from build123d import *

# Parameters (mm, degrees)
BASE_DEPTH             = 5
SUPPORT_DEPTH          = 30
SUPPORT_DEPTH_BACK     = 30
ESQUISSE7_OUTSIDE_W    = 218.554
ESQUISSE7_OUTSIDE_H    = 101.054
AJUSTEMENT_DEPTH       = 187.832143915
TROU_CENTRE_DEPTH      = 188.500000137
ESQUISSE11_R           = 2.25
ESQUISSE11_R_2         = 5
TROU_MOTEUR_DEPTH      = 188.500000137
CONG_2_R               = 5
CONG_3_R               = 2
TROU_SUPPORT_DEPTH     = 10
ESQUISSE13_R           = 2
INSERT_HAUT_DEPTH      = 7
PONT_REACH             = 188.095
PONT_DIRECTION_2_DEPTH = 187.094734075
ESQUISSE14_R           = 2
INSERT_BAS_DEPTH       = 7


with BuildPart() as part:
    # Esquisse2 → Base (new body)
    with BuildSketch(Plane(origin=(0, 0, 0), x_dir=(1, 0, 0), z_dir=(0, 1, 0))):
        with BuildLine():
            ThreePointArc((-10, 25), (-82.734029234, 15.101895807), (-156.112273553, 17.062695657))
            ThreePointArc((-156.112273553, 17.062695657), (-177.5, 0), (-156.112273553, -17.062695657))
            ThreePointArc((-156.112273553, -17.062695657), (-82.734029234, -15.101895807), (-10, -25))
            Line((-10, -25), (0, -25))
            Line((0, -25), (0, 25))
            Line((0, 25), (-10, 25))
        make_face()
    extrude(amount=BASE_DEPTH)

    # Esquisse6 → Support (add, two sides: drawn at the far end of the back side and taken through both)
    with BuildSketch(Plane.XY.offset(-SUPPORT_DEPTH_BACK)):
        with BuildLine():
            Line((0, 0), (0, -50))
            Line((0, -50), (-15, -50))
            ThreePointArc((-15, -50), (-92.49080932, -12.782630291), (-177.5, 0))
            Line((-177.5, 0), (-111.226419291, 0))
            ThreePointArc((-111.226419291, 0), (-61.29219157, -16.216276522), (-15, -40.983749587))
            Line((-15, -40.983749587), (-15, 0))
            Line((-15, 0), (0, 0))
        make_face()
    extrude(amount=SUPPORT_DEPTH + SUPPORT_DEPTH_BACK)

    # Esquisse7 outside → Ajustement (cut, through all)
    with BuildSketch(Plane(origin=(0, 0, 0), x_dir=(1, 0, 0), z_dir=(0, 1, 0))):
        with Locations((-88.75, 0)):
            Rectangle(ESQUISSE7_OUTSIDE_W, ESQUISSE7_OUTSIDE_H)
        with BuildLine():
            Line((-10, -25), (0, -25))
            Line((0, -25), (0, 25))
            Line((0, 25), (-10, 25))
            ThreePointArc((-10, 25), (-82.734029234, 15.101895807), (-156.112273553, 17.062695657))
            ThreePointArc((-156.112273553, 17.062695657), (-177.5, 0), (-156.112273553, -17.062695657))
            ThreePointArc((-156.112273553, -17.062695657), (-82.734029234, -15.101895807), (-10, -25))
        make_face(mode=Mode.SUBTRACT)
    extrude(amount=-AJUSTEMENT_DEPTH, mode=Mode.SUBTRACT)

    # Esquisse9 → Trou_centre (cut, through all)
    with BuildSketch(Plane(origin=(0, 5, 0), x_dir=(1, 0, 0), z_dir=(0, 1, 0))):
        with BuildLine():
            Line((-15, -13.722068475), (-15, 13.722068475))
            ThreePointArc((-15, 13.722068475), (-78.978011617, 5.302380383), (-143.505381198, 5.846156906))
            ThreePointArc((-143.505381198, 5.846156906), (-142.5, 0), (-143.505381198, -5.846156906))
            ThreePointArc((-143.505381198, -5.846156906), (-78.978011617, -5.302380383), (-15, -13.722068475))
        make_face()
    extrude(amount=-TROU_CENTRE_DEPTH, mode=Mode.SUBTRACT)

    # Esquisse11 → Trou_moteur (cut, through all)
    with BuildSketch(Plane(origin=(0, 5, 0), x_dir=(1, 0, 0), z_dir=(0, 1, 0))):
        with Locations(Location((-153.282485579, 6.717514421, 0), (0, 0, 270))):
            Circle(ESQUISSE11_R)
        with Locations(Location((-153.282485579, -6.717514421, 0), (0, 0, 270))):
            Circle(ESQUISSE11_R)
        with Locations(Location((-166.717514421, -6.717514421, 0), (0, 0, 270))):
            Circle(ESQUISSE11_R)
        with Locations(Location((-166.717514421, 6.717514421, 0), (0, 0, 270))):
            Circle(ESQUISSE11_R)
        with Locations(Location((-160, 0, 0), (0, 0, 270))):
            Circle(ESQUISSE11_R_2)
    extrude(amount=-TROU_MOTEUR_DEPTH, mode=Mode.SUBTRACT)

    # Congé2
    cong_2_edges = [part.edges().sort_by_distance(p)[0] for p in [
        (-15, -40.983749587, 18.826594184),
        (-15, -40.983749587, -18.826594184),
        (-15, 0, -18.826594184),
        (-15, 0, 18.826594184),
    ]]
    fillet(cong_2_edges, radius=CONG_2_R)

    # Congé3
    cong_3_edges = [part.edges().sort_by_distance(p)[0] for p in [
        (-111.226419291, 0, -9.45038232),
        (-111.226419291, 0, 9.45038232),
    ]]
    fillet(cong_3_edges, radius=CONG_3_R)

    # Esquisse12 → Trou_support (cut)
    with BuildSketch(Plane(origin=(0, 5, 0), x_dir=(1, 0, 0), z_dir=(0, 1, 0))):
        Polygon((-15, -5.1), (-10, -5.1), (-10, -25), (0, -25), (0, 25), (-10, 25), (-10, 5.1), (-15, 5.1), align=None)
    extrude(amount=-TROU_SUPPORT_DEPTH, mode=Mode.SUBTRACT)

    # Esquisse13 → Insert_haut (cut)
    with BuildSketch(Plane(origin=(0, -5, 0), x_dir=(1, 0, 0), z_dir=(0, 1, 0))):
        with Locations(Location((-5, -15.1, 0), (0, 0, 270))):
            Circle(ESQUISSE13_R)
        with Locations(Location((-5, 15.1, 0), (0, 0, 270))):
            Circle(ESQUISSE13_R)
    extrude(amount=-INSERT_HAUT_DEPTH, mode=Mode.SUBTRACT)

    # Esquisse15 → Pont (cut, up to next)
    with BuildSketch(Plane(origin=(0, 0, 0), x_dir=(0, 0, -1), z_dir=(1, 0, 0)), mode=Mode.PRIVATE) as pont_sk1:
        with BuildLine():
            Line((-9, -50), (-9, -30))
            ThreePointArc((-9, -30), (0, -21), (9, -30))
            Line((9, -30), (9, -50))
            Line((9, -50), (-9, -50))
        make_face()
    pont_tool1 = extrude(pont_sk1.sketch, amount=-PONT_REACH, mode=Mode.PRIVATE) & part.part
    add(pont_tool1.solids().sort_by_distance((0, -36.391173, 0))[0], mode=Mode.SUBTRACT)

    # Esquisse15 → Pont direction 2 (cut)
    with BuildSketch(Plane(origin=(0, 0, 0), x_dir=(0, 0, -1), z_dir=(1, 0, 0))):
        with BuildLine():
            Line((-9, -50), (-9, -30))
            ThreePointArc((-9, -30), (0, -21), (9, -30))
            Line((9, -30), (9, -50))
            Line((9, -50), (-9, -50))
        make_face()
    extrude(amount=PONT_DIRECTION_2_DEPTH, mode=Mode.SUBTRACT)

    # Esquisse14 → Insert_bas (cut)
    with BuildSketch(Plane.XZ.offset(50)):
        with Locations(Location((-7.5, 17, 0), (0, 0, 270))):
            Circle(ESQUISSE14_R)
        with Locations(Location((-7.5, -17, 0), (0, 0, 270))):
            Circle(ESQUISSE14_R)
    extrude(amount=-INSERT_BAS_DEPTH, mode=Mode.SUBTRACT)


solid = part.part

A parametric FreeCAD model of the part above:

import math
import FreeCAD as App
import Part
import Sketcher
Q = App.Units.Quantity


def edges_at(feature, points):
    """Names of the edges that pass closest to the given points."""
    edges = feature.Shape.Edges
    near = lambda p: min(range(len(edges)), key=lambda i: edges[i].distToShape(Part.Vertex(*p))[0])
    return sorted({f"Edge{near(p) + 1}" for p in points})

doc = App.newDocument("Part")
body = doc.addObject("PartDesign::Body", "Body")

# Sketch on XZ plane
sketch1 = body.newObject("Sketcher::SketchObject", "Sketch")
sketch1.AttachmentSupport = (doc.getObject("XZ_Plane"), [""])
sketch1.MapMode = "FlatFace"
sketch1.addGeometry([
    Part.ArcOfCircle(Part.Circle(App.Vector(-107.34375, -468.125, 0), App.Vector(0, 0, 1), 453.691053), math.radians(77.610311), math.radians(96.170807)),  # 0
    Part.ArcOfCircle(Part.Circle(App.Vector(-160, 0, 0), App.Vector(0, 0, 1), 17.5), math.radians(77.164315), math.radians(282.835685)),  # 1
    Part.ArcOfCircle(Part.Circle(App.Vector(-107.34375, 468.125, 0), App.Vector(0, 0, 1), 453.691053), math.radians(-96.170807), math.radians(-77.610311)),  # 2
    Part.LineSegment(App.Vector(-10, 25, 0), App.Vector(0, 25, 0)),  # 3
    Part.LineSegment(App.Vector(0, 25, 0), App.Vector(0, -25, 0)),  # 4
    Part.LineSegment(App.Vector(0, -25, 0), App.Vector(-10, -25, 0)),  # 5
], False)
sketch1.addConstraint([
    Sketcher.Constraint("Coincident", 0, 2, 1, 2),
    Sketcher.Constraint("Coincident", 1, 1, 2, 1),
    Sketcher.Constraint("Coincident", 2, 2, 3, 1),
    Sketcher.Constraint("Coincident", 3, 2, 4, 1),
    Sketcher.Constraint("Coincident", 4, 2, 5, 1),
    Sketcher.Constraint("Coincident", 5, 2, 0, 1),
    Sketcher.Constraint("Horizontal", 3),
    Sketcher.Constraint("Vertical", 4),
    Sketcher.Constraint("Horizontal", 5),
    Sketcher.Constraint("Equal", 0, 2),
    Sketcher.Constraint("Symmetric", 3, 2, 4, 2, -1, 1),
    Sketcher.Constraint("Symmetric", 0, 3, 2, 3, -1),
    Sketcher.Constraint("PointOnObject", 1, 3, -1),
    Sketcher.Constraint("Radius", 1, Q("17.5 mm")),
    Sketcher.Constraint("DistanceX", 3, 1, 3, 2, Q("10 mm")),
    Sketcher.Constraint("DistanceY", 4, 2, 4, 1, Q("50 mm")),
    Sketcher.Constraint("DistanceX", 1, 3, -1, 1, Q("160 mm")),
    Sketcher.Constraint("DistanceY", 0, 3, 2, 3, Q("936.25 mm")),
    Sketcher.Constraint("Radius", 0, Q("453.691053 mm")),
])
pad1 = body.newObject("PartDesign::Pad", "Pad")
pad1.Profile = sketch1
pad1.Length = 5
pad1.Reversed = True

# Sketch on XY plane
sketch2 = body.newObject("Sketcher::SketchObject", "Sketch001")
sketch2.AttachmentSupport = (doc.getObject("XY_Plane"), [""])
sketch2.MapMode = "FlatFace"
sketch2.addGeometry([
    Part.LineSegment(App.Vector(0, -50, 0), App.Vector(0, 0, 0)),  # 0
    Part.LineSegment(App.Vector(0, 0, 0), App.Vector(-15, 0, 0)),  # 1
    Part.LineSegment(App.Vector(-15, 0, 0), App.Vector(-15, -40.98375, 0)),  # 2
    Part.ArcOfCircle(Part.Circle(App.Vector(-177.5, -289.0625, 0), App.Vector(0, 0, 1), 296.5625), math.radians(56.773841), math.radians(77.086925)),  # 3
    Part.LineSegment(App.Vector(-111.226419, 0, 0), App.Vector(-177.5, 0, 0)),  # 4
    Part.ArcOfCircle(Part.Circle(App.Vector(-177.5, -289.0625, 0), App.Vector(0, 0, 1), 289.0625), math.radians(55.794542), math.radians(90)),  # 5
    Part.LineSegment(App.Vector(-15, -50, 0), App.Vector(0, -50, 0)),  # 6
], False)
sketch2.addConstraint([
    Sketcher.Constraint("Coincident", 0, 2, 1, 1),
    Sketcher.Constraint("Coincident", 1, 2, 2, 1),
    Sketcher.Constraint("Coincident", 2, 2, 3, 1),
    Sketcher.Constraint("Coincident", 3, 2, 4, 1),
    Sketcher.Constraint("Tangent", 4, 2, 5, 2),
    Sketcher.Constraint("Coincident", 5, 1, 6, 1),
    Sketcher.Constraint("Coincident", 6, 2, 0, 1),
    Sketcher.Constraint("Vertical", 0),
    Sketcher.Constraint("Horizontal", 1),
    Sketcher.Constraint("Vertical", 2),
    Sketcher.Constraint("Horizontal", 4),
    Sketcher.Constraint("Horizontal", 6),
    Sketcher.Constraint("Coincident", 0, 2, -1, 1),
    Sketcher.Constraint("Coincident", 5, 3, 3, 3),
    Sketcher.Constraint("PointOnObject", 3, 2, -1),
    Sketcher.Constraint("Vertical", 2, 2, 5, 1),
    Sketcher.Constraint("DistanceX", 1, 2, 1, 1, Q("15 mm")),
    Sketcher.Constraint("DistanceY", 0, 1, 0, 2, Q("50 mm")),
    Sketcher.Constraint("DistanceX", 3, 3, -1, 1, Q("177.5 mm")),
    Sketcher.Constraint("Radius", 3, Q("296.5625 mm")),
])
pad2 = body.newObject("PartDesign::Pad", "Pad001")
pad2.Profile = sketch2
pad2.Type = "TwoLengths"
pad2.Length = 30
pad2.Length2 = 30

# Sketch on XZ plane
sketch3 = body.newObject("Sketcher::SketchObject", "Sketch002")
sketch3.AttachmentSupport = (doc.getObject("XZ_Plane"), [""])
sketch3.MapMode = "FlatFace"
sketch3.addGeometry([
    Part.LineSegment(App.Vector(-198.027, -50.527, 0), App.Vector(-198.027, 50.527, 0)),  # 0
    Part.LineSegment(App.Vector(-198.027, 50.527, 0), App.Vector(20.527, 50.527, 0)),  # 1
    Part.LineSegment(App.Vector(20.527, 50.527, 0), App.Vector(20.527, -50.527, 0)),  # 2
    Part.LineSegment(App.Vector(20.527, -50.527, 0), App.Vector(-198.027, -50.527, 0)),  # 3
    Part.LineSegment(App.Vector(0, 25, 0), App.Vector(-10, 25, 0)),  # 4
    Part.ArcOfCircle(Part.Circle(App.Vector(-107.34375, 468.125, 0), App.Vector(0, 0, 1), 453.691053), math.radians(-96.170807), math.radians(-77.610311)),  # 5
    Part.ArcOfCircle(Part.Circle(App.Vector(-160, 0, 0), App.Vector(0, 0, 1), 17.5), math.radians(77.164315), math.radians(282.835685)),  # 6
    Part.ArcOfCircle(Part.Circle(App.Vector(-107.34375, -468.125, 0), App.Vector(0, 0, 1), 453.691053), math.radians(77.610311), math.radians(96.170807)),  # 7
    Part.LineSegment(App.Vector(-10, -25, 0), App.Vector(0, -25, 0)),  # 8
    Part.LineSegment(App.Vector(0, -25, 0), App.Vector(0, 25, 0)),  # 9
], False)
sketch3.addConstraint([
    Sketcher.Constraint("Coincident", 0, 2, 1, 1),
    Sketcher.Constraint("Coincident", 1, 2, 2, 1),
    Sketcher.Constraint("Coincident", 2, 2, 3, 1),
    Sketcher.Constraint("Coincident", 3, 2, 0, 1),
    Sketcher.Constraint("Coincident", 4, 2, 5, 2),
    Sketcher.Constraint("Coincident", 5, 1, 6, 1),
    Sketcher.Constraint("Coincident", 6, 2, 7, 2),
    Sketcher.Constraint("Coincident", 7, 1, 8, 1),
    Sketcher.Constraint("Coincident", 8, 2, 9, 1),
    Sketcher.Constraint("Coincident", 9, 2, 4, 1),
    Sketcher.Constraint("Vertical", 0),
    Sketcher.Constraint("Horizontal", 1),
    Sketcher.Constraint("Vertical", 2),
    Sketcher.Constraint("Horizontal", 3),
    Sketcher.Constraint("Horizontal", 4),
    Sketcher.Constraint("Horizontal", 8),
    Sketcher.Constraint("Vertical", 9),
    Sketcher.Constraint("Equal", 5, 7),
    Sketcher.Constraint("Symmetric", 8, 2, 9, 2, -1, 1),
    Sketcher.Constraint("Symmetric", 5, 3, 7, 3, -1),
    Sketcher.Constraint("PointOnObject", 6, 3, -1),
    Sketcher.Constraint("Radius", 6, Q("17.5 mm")),
    Sketcher.Constraint("DistanceX", 4, 2, 4, 1, Q("10 mm")),
    Sketcher.Constraint("DistanceY", 9, 1, 9, 2, Q("50 mm")),
    Sketcher.Constraint("DistanceX", 6, 3, -1, 1, Q("160 mm")),
    Sketcher.Constraint("DistanceX", 1, 1, 1, 2, Q("218.554 mm")),
    Sketcher.Constraint("DistanceY", 0, 1, 0, 2, Q("101.054 mm")),
    Sketcher.Constraint("DistanceY", 7, 3, 5, 3, Q("936.25 mm")),
    Sketcher.Constraint("DistanceX", 0, 2, -1, 1, Q("198.027 mm")),
    Sketcher.Constraint("DistanceY", -1, 1, 0, 2, Q("50.527 mm")),
    Sketcher.Constraint("Radius", 5, Q("453.691053 mm")),
])
pocket1 = body.newObject("PartDesign::Pocket", "Pocket")
pocket1.Profile = sketch3
pocket1.Type = "ThroughAll"
pocket1.Reversed = True

# Sketch on XZ plane
sketch4 = body.newObject("Sketcher::SketchObject", "Sketch003")
sketch4.AttachmentSupport = (doc.getObject("XZ_Plane"), [""])
sketch4.MapMode = "FlatFace"
sketch4.AttachmentOffset = App.Placement(App.Vector(0, 0, -5), App.Rotation())
sketch4.addGeometry([
    Part.LineSegment(App.Vector(-15, 13.722068, 0), App.Vector(-15, -13.722068, 0)),
    Part.ArcOfCircle(Part.Circle(App.Vector(-107.34375, -468.125, 0), App.Vector(0, 0, 1), 463.691053), math.radians(78.512783), math.radians(94.472838)),
    Part.ArcOfCircle(Part.Circle(App.Vector(-160, 0, 0), App.Vector(0, 0, 1), 17.5), math.radians(-19.515759), math.radians(19.515759)),
    Part.ArcOfCircle(Part.Circle(App.Vector(-107.34375, 468.125, 0), App.Vector(0, 0, 1), 463.691053), math.radians(-94.472838), math.radians(-78.512783)),
], False)
sketch4.addConstraint([
    Sketcher.Constraint("Coincident", 0, 2, 1, 1),
    Sketcher.Constraint("Coincident", 1, 2, 2, 1),
    Sketcher.Constraint("Coincident", 2, 2, 3, 1),
    Sketcher.Constraint("Coincident", 3, 2, 0, 1),
    Sketcher.Constraint("Vertical", 0),
    Sketcher.Constraint("Equal", 1, 3),
    Sketcher.Constraint("Symmetric", 1, 3, 3, 3, -1),
    Sketcher.Constraint("PointOnObject", 2, 3, -1),
    Sketcher.Constraint("Radius", 2, Q("17.5 mm")),
    Sketcher.Constraint("DistanceX", 2, 3, -1, 1, Q("160 mm")),
    Sketcher.Constraint("DistanceX", 0, 2, -1, 1, Q("15 mm")),
    Sketcher.Constraint("DistanceY", 1, 3, 3, 3, Q("936.25 mm")),
    Sketcher.Constraint("Radius", 1, Q("463.691053 mm")),
    Sketcher.Constraint("DistanceY", 0, 2, 0, 1, Q("27.444137 mm")),
])
pocket2 = body.newObject("PartDesign::Pocket", "Pocket001")
pocket2.Profile = sketch4
pocket2.Type = "ThroughAll"
pocket2.Reversed = True

# Sketch on XZ plane
sketch5 = body.newObject("Sketcher::SketchObject", "Sketch004")
sketch5.AttachmentSupport = (doc.getObject("XZ_Plane"), [""])
sketch5.MapMode = "FlatFace"
sketch5.AttachmentOffset = App.Placement(App.Vector(0, 0, -5), App.Rotation())
sketch5.addGeometry([
    Part.Circle(App.Vector(-153.282486, -6.717514, 0), App.Vector(0, 0, 1), 2.25),  # 0
    Part.Circle(App.Vector(-153.282486, 6.717514, 0), App.Vector(0, 0, 1), 2.25),  # 1
    Part.Circle(App.Vector(-166.717514, 6.717514, 0), App.Vector(0, 0, 1), 2.25),  # 2
    Part.Circle(App.Vector(-166.717514, -6.717514, 0), App.Vector(0, 0, 1), 2.25),  # 3
    Part.Circle(App.Vector(-160, 0, 0), App.Vector(0, 0, 1), 5),  # 4
], False)
sketch5.addConstraint([
    Sketcher.Constraint("Equal", 0, 1),
    Sketcher.Constraint("Equal", 1, 2),
    Sketcher.Constraint("Equal", 2, 3),
    Sketcher.Constraint("Symmetric", 0, 3, 1, 3, -1),
    Sketcher.Constraint("Symmetric", 2, 3, 3, 3, -1),
    Sketcher.Constraint("PointOnObject", 4, 3, -1),
    Sketcher.Constraint("Horizontal", 1, 3, 2, 3),
    Sketcher.Constraint("Diameter", 4, Q("10 mm")),
    Sketcher.Constraint("Diameter", 0, Q("4.5 mm")),
    Sketcher.Constraint("DistanceX", 4, 3, -1, 1, Q("160 mm")),
    Sketcher.Constraint("DistanceY", 0, 3, 1, 3, Q("13.435029 mm")),
    Sketcher.Constraint("DistanceX", 2, 3, 1, 3, Q("13.435029 mm")),
    Sketcher.Constraint("DistanceX", 0, 3, -1, 1, Q("153.282486 mm")),
])
pocket3 = body.newObject("PartDesign::Pocket", "Pocket002")
pocket3.Profile = sketch5
pocket3.Type = "ThroughAll"
pocket3.Reversed = True
doc.recompute()

fillet = body.newObject("PartDesign::Fillet", "Fillet")
fillet.Base = (pocket3, edges_at(pocket3, [
    (-15, -40.984, 18.827),
    (-15, -40.984, -18.827),
    (-15, 0, -18.827),
    (-15, 0, 18.827),
]))
fillet.Radius = 5
doc.recompute()

fillet2 = body.newObject("PartDesign::Fillet", "Fillet001")
fillet2.Base = (fillet, edges_at(fillet, [(-111.226, 0, -9.45), (-111.226, 0, 9.45)]))
fillet2.Radius = 2

# Sketch on XZ plane
sketch6 = body.newObject("Sketcher::SketchObject", "Sketch005")
sketch6.AttachmentSupport = (doc.getObject("XZ_Plane"), [""])
sketch6.MapMode = "FlatFace"
sketch6.AttachmentOffset = App.Placement(App.Vector(0, 0, -5), App.Rotation())
sketch6.addGeometry([
    Part.LineSegment(App.Vector(-15, 5.1, 0), App.Vector(-10, 5.1, 0)),  # 0
    Part.LineSegment(App.Vector(-10, 5.1, 0), App.Vector(-10, 25, 0)),  # 1
    Part.LineSegment(App.Vector(-10, 25, 0), App.Vector(0, 25, 0)),  # 2
    Part.LineSegment(App.Vector(0, 25, 0), App.Vector(0, -25, 0)),  # 3
    Part.LineSegment(App.Vector(0, -25, 0), App.Vector(-10, -25, 0)),  # 4
    Part.LineSegment(App.Vector(-10, -25, 0), App.Vector(-10, -5.1, 0)),  # 5
    Part.LineSegment(App.Vector(-10, -5.1, 0), App.Vector(-15, -5.1, 0)),  # 6
    Part.LineSegment(App.Vector(-15, -5.1, 0), App.Vector(-15, 5.1, 0)),  # 7
], False)
sketch6.addConstraint([
    Sketcher.Constraint("Coincident", 0, 2, 1, 1),
    Sketcher.Constraint("Coincident", 1, 2, 2, 1),
    Sketcher.Constraint("Coincident", 2, 2, 3, 1),
    Sketcher.Constraint("Coincident", 3, 2, 4, 1),
    Sketcher.Constraint("Coincident", 4, 2, 5, 1),
    Sketcher.Constraint("Coincident", 5, 2, 6, 1),
    Sketcher.Constraint("Coincident", 6, 2, 7, 1),
    Sketcher.Constraint("Coincident", 7, 2, 0, 1),
    Sketcher.Constraint("Horizontal", 0),
    Sketcher.Constraint("Vertical", 1),
    Sketcher.Constraint("Horizontal", 2),
    Sketcher.Constraint("Vertical", 3),
    Sketcher.Constraint("Horizontal", 4),
    Sketcher.Constraint("Vertical", 5),
    Sketcher.Constraint("Horizontal", 6),
    Sketcher.Constraint("Vertical", 7),
    Sketcher.Constraint("Symmetric", 2, 2, 3, 2, -1, 1),
    Sketcher.Constraint("Symmetric", 0, 2, 5, 2, -1),
    Sketcher.Constraint("DistanceX", 0, 1, 0, 2, Q("5 mm")),
    Sketcher.Constraint("DistanceX", 2, 1, 2, 2, Q("10 mm")),
    Sketcher.Constraint("DistanceY", 3, 2, 3, 1, Q("50 mm")),
    Sketcher.Constraint("DistanceY", 1, 1, 1, 2, Q("19.9 mm")),
])
pocket4 = body.newObject("PartDesign::Pocket", "Pocket003")
pocket4.Profile = sketch6
pocket4.Length = 10
pocket4.Reversed = True

# Sketch on XZ plane
sketch7 = body.newObject("Sketcher::SketchObject", "Sketch006")
sketch7.AttachmentSupport = (doc.getObject("XZ_Plane"), [""])
sketch7.MapMode = "FlatFace"
sketch7.AttachmentOffset = App.Placement(App.Vector(0, 0, 5), App.Rotation())
sketch7.addGeometry([
    Part.Circle(App.Vector(-5, 15.1, 0), App.Vector(0, 0, 1), 2),
    Part.Circle(App.Vector(-5, -15.1, 0), App.Vector(0, 0, 1), 2),
], False)
sketch7.addConstraint([
    Sketcher.Constraint("Equal", 0, 1),
    Sketcher.Constraint("Symmetric", 0, 3, 1, 3, -1),
    Sketcher.Constraint("Diameter", 0, Q("4 mm")),
    Sketcher.Constraint("DistanceX", 0, 3, -1, 1, Q("5 mm")),
    Sketcher.Constraint("DistanceY", -1, 1, 0, 3, Q("15.1 mm")),
])
pocket5 = body.newObject("PartDesign::Pocket", "Pocket004")
pocket5.Profile = sketch7
pocket5.Length = 7
pocket5.Reversed = True

# Sketch on YZ plane
sketch8 = body.newObject("Sketcher::SketchObject", "Sketch007")
sketch8.AttachmentSupport = (doc.getObject("YZ_Plane"), [""])
sketch8.MapMode = "FlatFace"
sketch8.addGeometry([
    Part.LineSegment(App.Vector(-30, 9, 0), App.Vector(-50, 9, 0)),
    Part.LineSegment(App.Vector(-50, 9, 0), App.Vector(-50, -9, 0)),
    Part.LineSegment(App.Vector(-50, -9, 0), App.Vector(-30, -9, 0)),
    Part.ArcOfCircle(Part.Circle(App.Vector(-30, 0, 0), App.Vector(0, 0, 1), 9), math.radians(-90), math.radians(90)),
], False)
sketch8.addConstraint([
    Sketcher.Constraint("Coincident", 0, 2, 1, 1),
    Sketcher.Constraint("Coincident", 1, 2, 2, 1),
    Sketcher.Constraint("Tangent", 2, 2, 3, 1),
    Sketcher.Constraint("Tangent", 3, 2, 0, 1),
    Sketcher.Constraint("Horizontal", 0),
    Sketcher.Constraint("Vertical", 1),
    Sketcher.Constraint("Horizontal", 2),
    Sketcher.Constraint("PointOnObject", 3, 3, -1),
    Sketcher.Constraint("Radius", 3, Q("9 mm")),
    Sketcher.Constraint("DistanceX", 0, 2, 0, 1, Q("20 mm")),
    Sketcher.Constraint("DistanceX", 3, 3, -1, 1, Q("30 mm")),
])
pocket6 = body.newObject("PartDesign::Pocket", "Pocket005")
pocket6.Profile = sketch8
pocket6.Type = "UpToFirst"

# Sketch on YZ plane
sketch9 = body.newObject("Sketcher::SketchObject", "Sketch008")
sketch9.AttachmentSupport = (doc.getObject("YZ_Plane"), [""])
sketch9.MapMode = "FlatFace"
sketch9.addGeometry([
    Part.LineSegment(App.Vector(-30, 9, 0), App.Vector(-50, 9, 0)),
    Part.LineSegment(App.Vector(-50, 9, 0), App.Vector(-50, -9, 0)),
    Part.LineSegment(App.Vector(-50, -9, 0), App.Vector(-30, -9, 0)),
    Part.ArcOfCircle(Part.Circle(App.Vector(-30, 0, 0), App.Vector(0, 0, 1), 9), math.radians(-90), math.radians(90)),
], False)
sketch9.addConstraint([
    Sketcher.Constraint("Coincident", 0, 2, 1, 1),
    Sketcher.Constraint("Coincident", 1, 2, 2, 1),
    Sketcher.Constraint("Tangent", 2, 2, 3, 1),
    Sketcher.Constraint("Tangent", 3, 2, 0, 1),
    Sketcher.Constraint("Horizontal", 0),
    Sketcher.Constraint("Vertical", 1),
    Sketcher.Constraint("Horizontal", 2),
    Sketcher.Constraint("PointOnObject", 3, 3, -1),
    Sketcher.Constraint("Radius", 3, Q("9 mm")),
    Sketcher.Constraint("DistanceX", 0, 2, 0, 1, Q("20 mm")),
    Sketcher.Constraint("DistanceX", 3, 3, -1, 1, Q("30 mm")),
])
pocket7 = body.newObject("PartDesign::Pocket", "Pocket006")
pocket7.Profile = sketch9
pocket7.Length = 187.094734
pocket7.Reversed = True

# Sketch on XZ plane
sketch10 = body.newObject("Sketcher::SketchObject", "Sketch009")
sketch10.AttachmentSupport = (doc.getObject("XZ_Plane"), [""])
sketch10.MapMode = "FlatFace"
sketch10.AttachmentOffset = App.Placement(App.Vector(0, 0, 50), App.Rotation())
sketch10.addGeometry([
    Part.Circle(App.Vector(-7.5, 17, 0), App.Vector(0, 0, 1), 2),
    Part.Circle(App.Vector(-7.5, -17, 0), App.Vector(0, 0, 1), 2),
], False)
sketch10.addConstraint([
    Sketcher.Constraint("Equal", 0, 1),
    Sketcher.Constraint("Symmetric", 0, 3, 1, 3, -1),
    Sketcher.Constraint("Diameter", 0, Q("4 mm")),
    Sketcher.Constraint("DistanceY", -1, 1, 0, 3, Q("17 mm")),
    Sketcher.Constraint("DistanceX", 0, 3, -1, 1, Q("7.5 mm")),
])
pocket8 = body.newObject("PartDesign::Pocket", "Pocket007")
pocket8.Profile = sketch10
pocket8.Length = 7

doc.recompute()
